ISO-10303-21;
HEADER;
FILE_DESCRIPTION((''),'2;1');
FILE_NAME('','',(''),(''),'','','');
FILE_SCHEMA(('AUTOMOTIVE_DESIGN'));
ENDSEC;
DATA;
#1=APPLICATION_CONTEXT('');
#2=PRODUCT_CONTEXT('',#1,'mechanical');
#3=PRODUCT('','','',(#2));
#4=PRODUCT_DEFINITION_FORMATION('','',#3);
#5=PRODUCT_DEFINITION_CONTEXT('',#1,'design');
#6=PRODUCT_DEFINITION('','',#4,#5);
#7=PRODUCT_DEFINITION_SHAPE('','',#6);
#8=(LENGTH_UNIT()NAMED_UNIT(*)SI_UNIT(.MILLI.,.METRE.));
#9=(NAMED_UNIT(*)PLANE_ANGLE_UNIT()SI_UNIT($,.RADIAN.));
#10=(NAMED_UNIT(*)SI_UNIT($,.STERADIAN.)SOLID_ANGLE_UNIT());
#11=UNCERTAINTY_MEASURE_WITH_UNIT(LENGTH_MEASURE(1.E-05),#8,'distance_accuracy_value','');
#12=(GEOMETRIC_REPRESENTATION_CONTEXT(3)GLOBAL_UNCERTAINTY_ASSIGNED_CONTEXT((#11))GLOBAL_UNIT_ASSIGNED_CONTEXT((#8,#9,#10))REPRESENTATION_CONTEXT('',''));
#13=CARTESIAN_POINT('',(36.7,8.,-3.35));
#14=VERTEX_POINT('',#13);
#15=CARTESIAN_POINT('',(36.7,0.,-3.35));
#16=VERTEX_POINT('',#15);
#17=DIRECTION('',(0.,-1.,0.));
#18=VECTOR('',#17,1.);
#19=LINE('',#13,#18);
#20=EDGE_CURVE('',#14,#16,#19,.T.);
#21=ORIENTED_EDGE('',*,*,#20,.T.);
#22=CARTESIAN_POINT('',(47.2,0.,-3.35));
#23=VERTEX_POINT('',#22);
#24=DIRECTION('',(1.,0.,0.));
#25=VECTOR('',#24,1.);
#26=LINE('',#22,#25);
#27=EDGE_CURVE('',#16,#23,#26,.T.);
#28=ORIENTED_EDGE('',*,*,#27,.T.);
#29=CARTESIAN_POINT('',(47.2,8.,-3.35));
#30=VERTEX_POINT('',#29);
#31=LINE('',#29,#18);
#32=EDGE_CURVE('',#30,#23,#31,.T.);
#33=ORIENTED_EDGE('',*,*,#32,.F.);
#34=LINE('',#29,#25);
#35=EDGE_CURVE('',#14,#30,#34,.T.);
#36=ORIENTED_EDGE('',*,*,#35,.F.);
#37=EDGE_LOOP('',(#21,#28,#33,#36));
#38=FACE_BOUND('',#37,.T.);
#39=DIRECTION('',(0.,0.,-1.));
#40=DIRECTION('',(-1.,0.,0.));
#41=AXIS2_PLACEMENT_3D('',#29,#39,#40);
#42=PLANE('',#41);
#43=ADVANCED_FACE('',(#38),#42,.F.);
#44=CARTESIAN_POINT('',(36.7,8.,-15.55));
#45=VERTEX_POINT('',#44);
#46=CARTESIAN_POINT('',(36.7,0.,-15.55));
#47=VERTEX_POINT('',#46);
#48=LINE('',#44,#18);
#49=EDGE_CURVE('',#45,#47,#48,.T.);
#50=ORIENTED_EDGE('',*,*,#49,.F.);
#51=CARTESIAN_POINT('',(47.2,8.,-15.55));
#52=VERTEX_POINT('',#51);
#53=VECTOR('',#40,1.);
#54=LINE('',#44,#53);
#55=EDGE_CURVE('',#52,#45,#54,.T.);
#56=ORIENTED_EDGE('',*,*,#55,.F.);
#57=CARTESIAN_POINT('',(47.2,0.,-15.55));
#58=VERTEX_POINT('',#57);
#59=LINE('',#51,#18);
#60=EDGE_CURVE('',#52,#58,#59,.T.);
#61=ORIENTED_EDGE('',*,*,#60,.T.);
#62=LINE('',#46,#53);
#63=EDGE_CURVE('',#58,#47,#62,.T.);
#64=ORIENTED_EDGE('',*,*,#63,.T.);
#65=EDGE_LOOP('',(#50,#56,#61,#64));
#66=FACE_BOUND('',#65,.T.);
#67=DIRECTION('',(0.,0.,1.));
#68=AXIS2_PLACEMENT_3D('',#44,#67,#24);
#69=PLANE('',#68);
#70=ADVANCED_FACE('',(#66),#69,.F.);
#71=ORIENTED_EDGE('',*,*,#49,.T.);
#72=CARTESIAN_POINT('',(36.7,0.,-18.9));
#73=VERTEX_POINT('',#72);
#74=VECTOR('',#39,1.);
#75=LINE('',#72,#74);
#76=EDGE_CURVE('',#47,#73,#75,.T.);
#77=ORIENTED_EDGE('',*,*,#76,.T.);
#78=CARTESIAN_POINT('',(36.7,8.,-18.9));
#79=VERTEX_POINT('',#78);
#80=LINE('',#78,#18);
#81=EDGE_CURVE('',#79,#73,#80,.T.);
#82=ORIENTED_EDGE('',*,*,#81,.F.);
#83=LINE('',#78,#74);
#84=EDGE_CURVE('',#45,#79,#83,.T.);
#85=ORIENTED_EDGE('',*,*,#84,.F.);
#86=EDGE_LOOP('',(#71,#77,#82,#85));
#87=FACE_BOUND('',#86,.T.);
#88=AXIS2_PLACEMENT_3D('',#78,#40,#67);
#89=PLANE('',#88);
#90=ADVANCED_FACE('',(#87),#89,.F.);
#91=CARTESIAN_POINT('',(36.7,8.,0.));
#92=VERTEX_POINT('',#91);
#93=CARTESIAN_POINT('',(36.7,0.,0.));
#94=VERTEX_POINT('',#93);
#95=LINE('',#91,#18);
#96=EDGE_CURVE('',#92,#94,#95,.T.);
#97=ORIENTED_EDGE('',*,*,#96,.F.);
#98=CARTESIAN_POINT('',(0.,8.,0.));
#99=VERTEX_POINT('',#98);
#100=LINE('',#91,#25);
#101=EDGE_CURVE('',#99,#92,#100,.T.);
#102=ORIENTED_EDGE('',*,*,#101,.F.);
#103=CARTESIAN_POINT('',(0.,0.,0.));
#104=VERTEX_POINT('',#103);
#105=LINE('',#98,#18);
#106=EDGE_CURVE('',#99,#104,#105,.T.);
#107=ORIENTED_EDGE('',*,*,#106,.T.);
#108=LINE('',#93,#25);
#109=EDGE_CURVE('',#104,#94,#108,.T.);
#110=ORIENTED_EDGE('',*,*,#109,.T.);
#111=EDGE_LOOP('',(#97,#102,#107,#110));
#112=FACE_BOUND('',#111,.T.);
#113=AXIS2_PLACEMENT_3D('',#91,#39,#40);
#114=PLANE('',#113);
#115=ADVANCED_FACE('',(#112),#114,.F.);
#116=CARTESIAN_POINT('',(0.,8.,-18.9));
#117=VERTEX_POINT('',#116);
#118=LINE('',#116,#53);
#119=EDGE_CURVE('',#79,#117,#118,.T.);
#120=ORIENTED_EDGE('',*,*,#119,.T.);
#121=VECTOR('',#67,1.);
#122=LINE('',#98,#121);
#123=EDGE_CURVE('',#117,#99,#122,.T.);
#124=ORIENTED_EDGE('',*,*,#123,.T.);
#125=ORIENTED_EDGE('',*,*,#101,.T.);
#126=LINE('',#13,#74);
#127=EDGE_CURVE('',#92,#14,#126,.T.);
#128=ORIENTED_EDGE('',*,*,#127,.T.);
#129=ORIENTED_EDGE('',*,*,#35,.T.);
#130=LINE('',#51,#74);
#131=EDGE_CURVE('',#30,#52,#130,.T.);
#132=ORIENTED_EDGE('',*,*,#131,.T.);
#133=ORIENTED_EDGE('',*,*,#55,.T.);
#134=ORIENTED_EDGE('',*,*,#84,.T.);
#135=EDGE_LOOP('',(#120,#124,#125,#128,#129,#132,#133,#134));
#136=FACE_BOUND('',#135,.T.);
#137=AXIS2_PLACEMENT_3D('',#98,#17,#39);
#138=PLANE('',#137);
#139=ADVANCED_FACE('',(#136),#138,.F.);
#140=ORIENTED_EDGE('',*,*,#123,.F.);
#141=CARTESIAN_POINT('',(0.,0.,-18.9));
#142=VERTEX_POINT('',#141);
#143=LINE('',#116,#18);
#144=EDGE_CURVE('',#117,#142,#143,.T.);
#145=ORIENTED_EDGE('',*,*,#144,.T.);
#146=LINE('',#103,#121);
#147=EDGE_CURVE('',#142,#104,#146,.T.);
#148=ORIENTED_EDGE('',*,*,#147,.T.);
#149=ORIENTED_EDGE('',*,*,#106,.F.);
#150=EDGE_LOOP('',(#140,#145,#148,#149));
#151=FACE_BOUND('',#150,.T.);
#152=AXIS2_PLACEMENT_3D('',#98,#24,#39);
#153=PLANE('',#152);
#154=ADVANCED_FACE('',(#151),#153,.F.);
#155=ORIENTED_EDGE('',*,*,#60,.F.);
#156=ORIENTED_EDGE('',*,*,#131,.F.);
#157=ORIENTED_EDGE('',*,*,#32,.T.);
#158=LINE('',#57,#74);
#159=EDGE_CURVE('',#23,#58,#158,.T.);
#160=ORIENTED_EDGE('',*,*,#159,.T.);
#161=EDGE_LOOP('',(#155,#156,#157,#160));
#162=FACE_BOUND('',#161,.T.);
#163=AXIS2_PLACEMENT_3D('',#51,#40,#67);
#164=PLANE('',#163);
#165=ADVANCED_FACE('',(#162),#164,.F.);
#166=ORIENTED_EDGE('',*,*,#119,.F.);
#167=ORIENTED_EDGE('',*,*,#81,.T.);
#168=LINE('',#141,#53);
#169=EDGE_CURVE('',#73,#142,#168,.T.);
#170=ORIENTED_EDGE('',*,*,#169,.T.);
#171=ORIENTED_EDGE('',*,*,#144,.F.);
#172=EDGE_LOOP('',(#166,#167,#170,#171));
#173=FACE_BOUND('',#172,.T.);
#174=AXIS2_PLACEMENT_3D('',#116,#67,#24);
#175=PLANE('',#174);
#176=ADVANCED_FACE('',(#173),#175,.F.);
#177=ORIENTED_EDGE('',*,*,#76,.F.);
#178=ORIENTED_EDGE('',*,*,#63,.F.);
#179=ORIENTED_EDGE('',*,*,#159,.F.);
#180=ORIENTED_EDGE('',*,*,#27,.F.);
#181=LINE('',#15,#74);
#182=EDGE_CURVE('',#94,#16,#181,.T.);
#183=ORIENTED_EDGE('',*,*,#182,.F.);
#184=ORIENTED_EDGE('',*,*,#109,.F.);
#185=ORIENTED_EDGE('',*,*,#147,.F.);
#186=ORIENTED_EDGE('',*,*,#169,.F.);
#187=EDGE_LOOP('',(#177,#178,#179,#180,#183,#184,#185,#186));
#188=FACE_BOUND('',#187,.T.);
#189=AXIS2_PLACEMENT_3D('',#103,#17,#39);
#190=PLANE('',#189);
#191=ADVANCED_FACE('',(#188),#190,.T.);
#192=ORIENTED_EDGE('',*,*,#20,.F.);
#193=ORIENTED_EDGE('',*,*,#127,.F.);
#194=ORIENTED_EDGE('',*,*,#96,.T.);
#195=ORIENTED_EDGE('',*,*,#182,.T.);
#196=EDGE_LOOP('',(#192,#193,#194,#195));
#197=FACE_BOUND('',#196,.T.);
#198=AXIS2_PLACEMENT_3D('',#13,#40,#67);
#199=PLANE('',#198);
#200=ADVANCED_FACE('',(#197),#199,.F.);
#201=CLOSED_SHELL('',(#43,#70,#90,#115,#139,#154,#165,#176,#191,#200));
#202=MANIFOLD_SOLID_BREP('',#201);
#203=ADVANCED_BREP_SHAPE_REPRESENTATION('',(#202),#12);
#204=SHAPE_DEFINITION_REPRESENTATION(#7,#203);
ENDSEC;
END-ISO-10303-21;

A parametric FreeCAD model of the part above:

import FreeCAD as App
import Part
import Sketcher

V = App.Vector

doc = App.newDocument("Part")
body = doc.addObject("PartDesign::Body", "Body")

sketch1 = body.newObject("Sketcher::SketchObject", "Sketch")
sketch1.AttachmentSupport = (doc.getObject("XZ_Plane"), [""])
sketch1.MapMode = "FlatFace"
sketch1.addGeometry(Part.LineSegment(V(0, -18.9, 0), V(0, 0, 0)), False)
sketch1.addGeometry(Part.LineSegment(V(0, 0, 0), V(36.7, 0, 0)), False)
sketch1.addGeometry(Part.LineSegment(V(36.7, 0, 0), V(36.7, -3.35, 0)), False)
sketch1.addGeometry(Part.LineSegment(V(36.7, -3.35, 0), V(47.2, -3.35, 0)), False)
sketch1.addGeometry(Part.LineSegment(V(47.2, -3.35, 0), V(47.2, -15.55, 0)), False)
sketch1.addGeometry(Part.LineSegment(V(47.2, -15.55, 0), V(36.7, -15.55, 0)), False)
sketch1.addGeometry(Part.LineSegment(V(36.7, -15.55, 0), V(36.7, -18.9, 0)), False)
sketch1.addGeometry(Part.LineSegment(V(36.7, -18.9, 0), V(0, -18.9, 0)), False)
sketch1.addConstraint(Sketcher.Constraint("Coincident", 0, 2, 1, 1))
sketch1.addConstraint(Sketcher.Constraint("Coincident", 1, 2, 2, 1))
sketch1.addConstraint(Sketcher.Constraint("Coincident", 2, 2, 3, 1))
sketch1.addConstraint(Sketcher.Constraint("Coincident", 3, 2, 4, 1))
sketch1.addConstraint(Sketcher.Constraint("Coincident", 4, 2, 5, 1))
sketch1.addConstraint(Sketcher.Constraint("Coincident", 5, 2, 6, 1))
sketch1.addConstraint(Sketcher.Constraint("Coincident", 6, 2, 7, 1))
sketch1.addConstraint(Sketcher.Constraint("Coincident", 7, 2, 0, 1))
sketch1.addConstraint(Sketcher.Constraint("Vertical", 0))
sketch1.addConstraint(Sketcher.Constraint("Horizontal", 1))
sketch1.addConstraint(Sketcher.Constraint("Vertical", 2))
sketch1.addConstraint(Sketcher.Constraint("Horizontal", 3))
sketch1.addConstraint(Sketcher.Constraint("Vertical", 4))
sketch1.addConstraint(Sketcher.Constraint("Horizontal", 5))
sketch1.addConstraint(Sketcher.Constraint("Vertical", 6))
sketch1.addConstraint(Sketcher.Constraint("Horizontal", 7))
sketch1.addConstraint(Sketcher.Constraint("Coincident", 0, 2, -1, 1))
sketch1.addConstraint(Sketcher.Constraint("Vertical", 2, 2, 5, 2))
sketch1.addConstraint(Sketcher.Constraint("Equal", 2, 6))
sketch1.addConstraint(Sketcher.Constraint("DistanceX", 1, 1, 1, 2, 36.7))
sketch1.addConstraint(Sketcher.Constraint("DistanceX", 3, 1, 3, 2, 10.5))
sketch1.addConstraint(Sketcher.Constraint("DistanceY", 0, 1, 0, 2, 18.9))
sketch1.addConstraint(Sketcher.Constraint("DistanceY", 4, 2, 4, 1, 12.2))
pad1 = body.newObject("PartDesign::Pad", "Pad")
pad1.Profile = sketch1
pad1.Length = 8
pad1.Reversed = True

doc.recompute()
